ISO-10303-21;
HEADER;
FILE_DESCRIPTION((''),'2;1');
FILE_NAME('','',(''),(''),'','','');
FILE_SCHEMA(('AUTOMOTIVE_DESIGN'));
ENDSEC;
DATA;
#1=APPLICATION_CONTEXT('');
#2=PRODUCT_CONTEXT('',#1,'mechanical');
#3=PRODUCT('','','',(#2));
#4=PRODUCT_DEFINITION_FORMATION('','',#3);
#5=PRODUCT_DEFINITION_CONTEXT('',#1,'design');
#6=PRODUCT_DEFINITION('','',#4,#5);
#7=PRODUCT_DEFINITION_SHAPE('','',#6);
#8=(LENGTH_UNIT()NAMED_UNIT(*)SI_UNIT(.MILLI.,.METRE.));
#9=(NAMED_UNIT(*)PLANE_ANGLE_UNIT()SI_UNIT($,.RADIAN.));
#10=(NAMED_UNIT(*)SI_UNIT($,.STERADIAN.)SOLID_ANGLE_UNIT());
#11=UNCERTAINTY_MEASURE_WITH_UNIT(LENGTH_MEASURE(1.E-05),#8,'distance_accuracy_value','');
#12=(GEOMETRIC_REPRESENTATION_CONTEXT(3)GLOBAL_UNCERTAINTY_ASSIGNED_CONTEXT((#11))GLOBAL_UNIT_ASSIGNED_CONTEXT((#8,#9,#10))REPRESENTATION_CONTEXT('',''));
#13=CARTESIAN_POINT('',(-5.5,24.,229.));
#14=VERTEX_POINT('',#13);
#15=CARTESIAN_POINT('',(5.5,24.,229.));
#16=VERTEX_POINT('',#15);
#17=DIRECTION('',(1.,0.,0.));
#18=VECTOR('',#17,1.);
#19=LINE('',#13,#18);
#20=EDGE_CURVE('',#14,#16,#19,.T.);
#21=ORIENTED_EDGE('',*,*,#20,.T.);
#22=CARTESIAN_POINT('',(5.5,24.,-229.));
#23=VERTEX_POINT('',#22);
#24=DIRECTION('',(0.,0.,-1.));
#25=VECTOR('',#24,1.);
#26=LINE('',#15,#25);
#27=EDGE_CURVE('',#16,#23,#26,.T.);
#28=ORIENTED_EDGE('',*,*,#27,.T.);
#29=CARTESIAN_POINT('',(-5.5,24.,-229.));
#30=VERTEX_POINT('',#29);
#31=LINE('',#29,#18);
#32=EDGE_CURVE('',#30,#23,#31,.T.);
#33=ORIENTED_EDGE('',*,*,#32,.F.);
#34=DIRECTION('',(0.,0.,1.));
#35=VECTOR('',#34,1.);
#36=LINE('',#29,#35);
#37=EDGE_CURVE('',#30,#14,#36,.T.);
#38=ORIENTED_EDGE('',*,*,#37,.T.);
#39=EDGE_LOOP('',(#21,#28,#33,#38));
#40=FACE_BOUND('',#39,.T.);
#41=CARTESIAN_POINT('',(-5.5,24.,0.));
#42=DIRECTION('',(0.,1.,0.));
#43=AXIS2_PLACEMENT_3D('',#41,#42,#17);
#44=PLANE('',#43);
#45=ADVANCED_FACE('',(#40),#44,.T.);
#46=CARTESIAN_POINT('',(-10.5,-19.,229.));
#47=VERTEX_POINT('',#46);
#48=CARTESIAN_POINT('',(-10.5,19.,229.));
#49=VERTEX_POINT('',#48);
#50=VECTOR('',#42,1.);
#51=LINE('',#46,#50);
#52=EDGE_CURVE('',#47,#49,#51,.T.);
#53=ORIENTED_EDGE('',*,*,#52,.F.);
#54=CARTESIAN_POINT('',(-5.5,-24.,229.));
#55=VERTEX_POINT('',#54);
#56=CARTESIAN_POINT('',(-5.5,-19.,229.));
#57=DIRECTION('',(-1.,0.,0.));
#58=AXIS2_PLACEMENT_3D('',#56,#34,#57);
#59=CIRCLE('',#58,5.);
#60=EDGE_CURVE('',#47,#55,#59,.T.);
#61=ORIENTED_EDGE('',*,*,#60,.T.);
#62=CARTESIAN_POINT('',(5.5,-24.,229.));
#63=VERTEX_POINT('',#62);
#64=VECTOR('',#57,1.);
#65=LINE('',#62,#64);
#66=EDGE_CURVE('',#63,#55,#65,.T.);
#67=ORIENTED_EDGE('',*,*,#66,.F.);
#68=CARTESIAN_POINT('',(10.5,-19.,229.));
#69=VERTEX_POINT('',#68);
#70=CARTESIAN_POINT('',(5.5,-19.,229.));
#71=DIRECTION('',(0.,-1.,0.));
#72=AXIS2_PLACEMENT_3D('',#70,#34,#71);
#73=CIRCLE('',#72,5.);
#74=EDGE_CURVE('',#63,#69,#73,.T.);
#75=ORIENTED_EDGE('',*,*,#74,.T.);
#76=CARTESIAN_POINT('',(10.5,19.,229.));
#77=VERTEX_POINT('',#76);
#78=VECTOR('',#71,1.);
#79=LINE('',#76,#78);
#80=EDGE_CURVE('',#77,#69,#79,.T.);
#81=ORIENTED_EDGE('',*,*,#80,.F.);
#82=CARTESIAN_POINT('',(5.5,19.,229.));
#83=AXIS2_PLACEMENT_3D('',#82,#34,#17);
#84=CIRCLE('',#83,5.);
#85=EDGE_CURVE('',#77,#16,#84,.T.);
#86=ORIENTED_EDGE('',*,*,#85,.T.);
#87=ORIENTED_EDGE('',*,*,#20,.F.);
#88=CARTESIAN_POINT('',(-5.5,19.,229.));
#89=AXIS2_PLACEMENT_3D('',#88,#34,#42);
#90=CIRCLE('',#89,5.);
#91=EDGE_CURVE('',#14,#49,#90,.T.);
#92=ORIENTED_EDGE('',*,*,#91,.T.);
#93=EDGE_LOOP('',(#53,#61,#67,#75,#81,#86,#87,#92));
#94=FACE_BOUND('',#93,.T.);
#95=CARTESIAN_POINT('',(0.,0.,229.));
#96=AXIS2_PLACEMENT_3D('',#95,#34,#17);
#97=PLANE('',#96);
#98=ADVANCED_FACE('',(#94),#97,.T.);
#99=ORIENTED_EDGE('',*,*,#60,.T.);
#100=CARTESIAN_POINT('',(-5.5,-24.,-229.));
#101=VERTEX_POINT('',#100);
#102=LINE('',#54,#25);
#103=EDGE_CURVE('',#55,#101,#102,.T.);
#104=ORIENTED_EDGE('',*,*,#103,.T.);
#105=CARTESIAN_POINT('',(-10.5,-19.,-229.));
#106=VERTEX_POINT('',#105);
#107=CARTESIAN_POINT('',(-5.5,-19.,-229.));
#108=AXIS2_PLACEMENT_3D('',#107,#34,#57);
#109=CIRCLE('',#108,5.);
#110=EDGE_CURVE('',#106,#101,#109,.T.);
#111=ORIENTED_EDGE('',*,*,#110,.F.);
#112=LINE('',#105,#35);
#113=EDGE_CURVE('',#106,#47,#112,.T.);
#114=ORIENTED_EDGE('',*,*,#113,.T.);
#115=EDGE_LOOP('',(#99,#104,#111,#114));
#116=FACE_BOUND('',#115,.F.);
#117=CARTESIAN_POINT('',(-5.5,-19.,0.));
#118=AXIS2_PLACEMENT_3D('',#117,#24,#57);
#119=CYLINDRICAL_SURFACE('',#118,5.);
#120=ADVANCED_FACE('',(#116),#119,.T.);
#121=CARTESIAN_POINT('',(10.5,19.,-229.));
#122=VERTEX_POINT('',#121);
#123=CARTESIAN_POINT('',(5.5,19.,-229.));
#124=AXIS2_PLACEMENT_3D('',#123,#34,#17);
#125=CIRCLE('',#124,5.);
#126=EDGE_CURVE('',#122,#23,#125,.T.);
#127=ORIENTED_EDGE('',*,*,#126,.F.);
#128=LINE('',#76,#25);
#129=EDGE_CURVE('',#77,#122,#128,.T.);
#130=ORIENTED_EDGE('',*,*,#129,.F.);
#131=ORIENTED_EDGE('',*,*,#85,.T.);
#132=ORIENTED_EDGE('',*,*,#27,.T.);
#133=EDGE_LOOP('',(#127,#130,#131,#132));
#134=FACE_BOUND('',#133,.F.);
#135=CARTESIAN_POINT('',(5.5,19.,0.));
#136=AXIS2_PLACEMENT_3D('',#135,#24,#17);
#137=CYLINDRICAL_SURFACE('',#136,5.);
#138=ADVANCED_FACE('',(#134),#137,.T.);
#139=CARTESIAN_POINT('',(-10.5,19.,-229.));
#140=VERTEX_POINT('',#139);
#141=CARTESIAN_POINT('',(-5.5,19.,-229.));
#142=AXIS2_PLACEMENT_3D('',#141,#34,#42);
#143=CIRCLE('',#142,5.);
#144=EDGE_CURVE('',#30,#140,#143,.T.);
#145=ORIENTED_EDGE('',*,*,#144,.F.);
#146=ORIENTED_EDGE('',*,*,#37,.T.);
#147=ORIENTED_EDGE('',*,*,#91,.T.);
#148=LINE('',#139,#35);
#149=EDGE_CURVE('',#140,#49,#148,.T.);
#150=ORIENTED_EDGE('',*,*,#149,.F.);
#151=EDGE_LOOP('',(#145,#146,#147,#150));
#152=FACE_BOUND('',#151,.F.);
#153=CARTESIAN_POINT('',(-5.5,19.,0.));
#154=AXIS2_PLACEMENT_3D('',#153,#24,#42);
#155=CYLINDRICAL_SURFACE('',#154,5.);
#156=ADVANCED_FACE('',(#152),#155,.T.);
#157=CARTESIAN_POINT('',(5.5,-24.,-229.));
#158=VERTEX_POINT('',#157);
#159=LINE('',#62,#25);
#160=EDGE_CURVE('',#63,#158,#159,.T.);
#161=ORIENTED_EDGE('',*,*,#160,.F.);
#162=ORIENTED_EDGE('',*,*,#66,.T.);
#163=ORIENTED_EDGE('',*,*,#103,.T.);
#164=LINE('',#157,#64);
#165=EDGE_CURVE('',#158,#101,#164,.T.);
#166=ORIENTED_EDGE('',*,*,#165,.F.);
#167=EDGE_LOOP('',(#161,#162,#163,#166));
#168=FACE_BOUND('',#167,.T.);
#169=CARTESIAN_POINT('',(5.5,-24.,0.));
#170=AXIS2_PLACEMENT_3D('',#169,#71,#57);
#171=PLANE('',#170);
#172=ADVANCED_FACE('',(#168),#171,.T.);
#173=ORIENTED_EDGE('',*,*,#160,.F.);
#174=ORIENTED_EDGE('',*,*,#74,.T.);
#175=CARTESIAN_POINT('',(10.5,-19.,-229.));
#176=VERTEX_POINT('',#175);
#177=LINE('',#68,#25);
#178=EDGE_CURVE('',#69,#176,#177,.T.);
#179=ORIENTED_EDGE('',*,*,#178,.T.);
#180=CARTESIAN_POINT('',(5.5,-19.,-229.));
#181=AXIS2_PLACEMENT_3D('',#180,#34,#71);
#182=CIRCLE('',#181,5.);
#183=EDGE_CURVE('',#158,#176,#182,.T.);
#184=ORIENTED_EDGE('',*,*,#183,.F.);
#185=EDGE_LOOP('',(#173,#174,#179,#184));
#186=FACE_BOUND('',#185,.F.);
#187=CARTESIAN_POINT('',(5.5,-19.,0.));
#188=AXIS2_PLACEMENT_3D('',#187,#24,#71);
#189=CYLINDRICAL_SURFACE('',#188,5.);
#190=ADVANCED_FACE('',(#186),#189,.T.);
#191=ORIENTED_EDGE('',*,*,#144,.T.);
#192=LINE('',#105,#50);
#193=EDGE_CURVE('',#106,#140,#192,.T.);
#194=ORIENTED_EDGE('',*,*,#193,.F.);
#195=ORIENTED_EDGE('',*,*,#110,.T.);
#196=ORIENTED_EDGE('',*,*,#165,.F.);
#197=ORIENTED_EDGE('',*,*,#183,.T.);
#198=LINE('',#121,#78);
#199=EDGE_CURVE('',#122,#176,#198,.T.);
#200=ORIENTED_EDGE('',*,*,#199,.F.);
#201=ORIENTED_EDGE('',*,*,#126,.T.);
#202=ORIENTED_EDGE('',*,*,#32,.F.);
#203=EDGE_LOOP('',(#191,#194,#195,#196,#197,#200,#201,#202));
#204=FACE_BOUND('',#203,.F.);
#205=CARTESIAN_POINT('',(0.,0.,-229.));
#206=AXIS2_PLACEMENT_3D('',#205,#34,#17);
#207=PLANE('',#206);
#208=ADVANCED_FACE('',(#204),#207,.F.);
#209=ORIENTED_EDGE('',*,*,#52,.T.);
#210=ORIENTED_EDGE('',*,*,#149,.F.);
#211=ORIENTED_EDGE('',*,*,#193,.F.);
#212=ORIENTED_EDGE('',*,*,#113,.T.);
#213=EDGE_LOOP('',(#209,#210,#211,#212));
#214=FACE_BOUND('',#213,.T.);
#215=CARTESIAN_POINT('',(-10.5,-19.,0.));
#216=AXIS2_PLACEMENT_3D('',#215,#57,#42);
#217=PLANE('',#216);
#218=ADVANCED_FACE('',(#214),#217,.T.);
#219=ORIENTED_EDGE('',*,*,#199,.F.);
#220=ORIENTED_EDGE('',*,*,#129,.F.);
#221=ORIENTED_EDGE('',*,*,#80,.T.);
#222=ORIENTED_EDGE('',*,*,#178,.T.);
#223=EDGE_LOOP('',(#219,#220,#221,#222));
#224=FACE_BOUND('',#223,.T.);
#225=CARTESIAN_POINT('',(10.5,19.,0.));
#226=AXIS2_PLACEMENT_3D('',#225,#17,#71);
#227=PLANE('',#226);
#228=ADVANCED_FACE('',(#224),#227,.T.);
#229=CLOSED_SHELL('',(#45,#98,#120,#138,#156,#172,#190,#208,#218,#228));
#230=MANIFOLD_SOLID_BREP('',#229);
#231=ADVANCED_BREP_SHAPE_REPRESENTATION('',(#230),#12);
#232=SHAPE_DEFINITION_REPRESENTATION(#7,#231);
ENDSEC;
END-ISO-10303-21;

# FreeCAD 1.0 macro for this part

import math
import FreeCAD as App
import Part
import Sketcher
from FreeCAD import Vector

doc = App.newDocument("Part")
body = doc.addObject("PartDesign::Body", "Body")

# Sketch on XY plane
sketch1 = body.newObject("Sketcher::SketchObject", "Sketch")
sketch1.AttachmentSupport = (doc.getObject("XY_Plane"), [""])
sketch1.MapMode = "FlatFace"
sketch1.addGeometry([
    Part.LineSegment(Vector(6, 24, 0), Vector(-6, 24, 0)),  # 0
    Part.ArcOfCircle(Part.Circle(Vector(-6, 19, 0), Vector(0, 0, 1), 5), math.radians(90), math.radians(180)),  # 1
    Part.LineSegment(Vector(-10, 19, 0), Vector(-10, -19, 0)),  # 2
    Part.ArcOfCircle(Part.Circle(Vector(-6, -19, 0), Vector(0, 0, 1), 5), math.radians(180), math.radians(270)),  # 3
    Part.LineSegment(Vector(-6, -24, 0), Vector(6, -24, 0)),  # 4
    Part.ArcOfCircle(Part.Circle(Vector(6, -19, 0), Vector(0, 0, 1), 5), math.radians(-90), math.radians(0)),  # 5
    Part.LineSegment(Vector(10, -19, 0), Vector(10, 19, 0)),  # 6
    Part.ArcOfCircle(Part.Circle(Vector(6, 19, 0), Vector(0, 0, 1), 5), math.radians(0), math.radians(90)),  # 7
], False)
sketch1.addConstraint([
    Sketcher.Constraint("Tangent", 0, 2, 1, 1),
    Sketcher.Constraint("Tangent", 1, 2, 2, 1),
    Sketcher.Constraint("Tangent", 2, 2, 3, 1),
    Sketcher.Constraint("Tangent", 3, 2, 4, 1),
    Sketcher.Constraint("Tangent", 4, 2, 5, 1),
    Sketcher.Constraint("Tangent", 5, 2, 6, 1),
    Sketcher.Constraint("Tangent", 6, 2, 7, 1),
    Sketcher.Constraint("Tangent", 7, 2, 0, 1),
    Sketcher.Constraint("Horizontal", 0),
    Sketcher.Constraint("Vertical", 2),
    Sketcher.Constraint("Horizontal", 4),
    Sketcher.Constraint("Vertical", 6),
    Sketcher.Constraint("Equal", 1, 3),
    Sketcher.Constraint("Equal", 3, 5),
    Sketcher.Constraint("Equal", 5, 7),
    Sketcher.Constraint("Symmetric", 1, 3, 5, 3, -1, 1),
    Sketcher.Constraint("Radius", 1, 5.0),
    Sketcher.Constraint("DistanceX", 2, 2, 5, 2, 21.0),
    Sketcher.Constraint("DistanceY", 2, 2, 2, 1, 38.0),
])
pad1 = body.newObject("PartDesign::Pad", "Pad")
pad1.Profile = sketch1
pad1.Length = 458
pad1.Midplane = True

doc.recompute()
